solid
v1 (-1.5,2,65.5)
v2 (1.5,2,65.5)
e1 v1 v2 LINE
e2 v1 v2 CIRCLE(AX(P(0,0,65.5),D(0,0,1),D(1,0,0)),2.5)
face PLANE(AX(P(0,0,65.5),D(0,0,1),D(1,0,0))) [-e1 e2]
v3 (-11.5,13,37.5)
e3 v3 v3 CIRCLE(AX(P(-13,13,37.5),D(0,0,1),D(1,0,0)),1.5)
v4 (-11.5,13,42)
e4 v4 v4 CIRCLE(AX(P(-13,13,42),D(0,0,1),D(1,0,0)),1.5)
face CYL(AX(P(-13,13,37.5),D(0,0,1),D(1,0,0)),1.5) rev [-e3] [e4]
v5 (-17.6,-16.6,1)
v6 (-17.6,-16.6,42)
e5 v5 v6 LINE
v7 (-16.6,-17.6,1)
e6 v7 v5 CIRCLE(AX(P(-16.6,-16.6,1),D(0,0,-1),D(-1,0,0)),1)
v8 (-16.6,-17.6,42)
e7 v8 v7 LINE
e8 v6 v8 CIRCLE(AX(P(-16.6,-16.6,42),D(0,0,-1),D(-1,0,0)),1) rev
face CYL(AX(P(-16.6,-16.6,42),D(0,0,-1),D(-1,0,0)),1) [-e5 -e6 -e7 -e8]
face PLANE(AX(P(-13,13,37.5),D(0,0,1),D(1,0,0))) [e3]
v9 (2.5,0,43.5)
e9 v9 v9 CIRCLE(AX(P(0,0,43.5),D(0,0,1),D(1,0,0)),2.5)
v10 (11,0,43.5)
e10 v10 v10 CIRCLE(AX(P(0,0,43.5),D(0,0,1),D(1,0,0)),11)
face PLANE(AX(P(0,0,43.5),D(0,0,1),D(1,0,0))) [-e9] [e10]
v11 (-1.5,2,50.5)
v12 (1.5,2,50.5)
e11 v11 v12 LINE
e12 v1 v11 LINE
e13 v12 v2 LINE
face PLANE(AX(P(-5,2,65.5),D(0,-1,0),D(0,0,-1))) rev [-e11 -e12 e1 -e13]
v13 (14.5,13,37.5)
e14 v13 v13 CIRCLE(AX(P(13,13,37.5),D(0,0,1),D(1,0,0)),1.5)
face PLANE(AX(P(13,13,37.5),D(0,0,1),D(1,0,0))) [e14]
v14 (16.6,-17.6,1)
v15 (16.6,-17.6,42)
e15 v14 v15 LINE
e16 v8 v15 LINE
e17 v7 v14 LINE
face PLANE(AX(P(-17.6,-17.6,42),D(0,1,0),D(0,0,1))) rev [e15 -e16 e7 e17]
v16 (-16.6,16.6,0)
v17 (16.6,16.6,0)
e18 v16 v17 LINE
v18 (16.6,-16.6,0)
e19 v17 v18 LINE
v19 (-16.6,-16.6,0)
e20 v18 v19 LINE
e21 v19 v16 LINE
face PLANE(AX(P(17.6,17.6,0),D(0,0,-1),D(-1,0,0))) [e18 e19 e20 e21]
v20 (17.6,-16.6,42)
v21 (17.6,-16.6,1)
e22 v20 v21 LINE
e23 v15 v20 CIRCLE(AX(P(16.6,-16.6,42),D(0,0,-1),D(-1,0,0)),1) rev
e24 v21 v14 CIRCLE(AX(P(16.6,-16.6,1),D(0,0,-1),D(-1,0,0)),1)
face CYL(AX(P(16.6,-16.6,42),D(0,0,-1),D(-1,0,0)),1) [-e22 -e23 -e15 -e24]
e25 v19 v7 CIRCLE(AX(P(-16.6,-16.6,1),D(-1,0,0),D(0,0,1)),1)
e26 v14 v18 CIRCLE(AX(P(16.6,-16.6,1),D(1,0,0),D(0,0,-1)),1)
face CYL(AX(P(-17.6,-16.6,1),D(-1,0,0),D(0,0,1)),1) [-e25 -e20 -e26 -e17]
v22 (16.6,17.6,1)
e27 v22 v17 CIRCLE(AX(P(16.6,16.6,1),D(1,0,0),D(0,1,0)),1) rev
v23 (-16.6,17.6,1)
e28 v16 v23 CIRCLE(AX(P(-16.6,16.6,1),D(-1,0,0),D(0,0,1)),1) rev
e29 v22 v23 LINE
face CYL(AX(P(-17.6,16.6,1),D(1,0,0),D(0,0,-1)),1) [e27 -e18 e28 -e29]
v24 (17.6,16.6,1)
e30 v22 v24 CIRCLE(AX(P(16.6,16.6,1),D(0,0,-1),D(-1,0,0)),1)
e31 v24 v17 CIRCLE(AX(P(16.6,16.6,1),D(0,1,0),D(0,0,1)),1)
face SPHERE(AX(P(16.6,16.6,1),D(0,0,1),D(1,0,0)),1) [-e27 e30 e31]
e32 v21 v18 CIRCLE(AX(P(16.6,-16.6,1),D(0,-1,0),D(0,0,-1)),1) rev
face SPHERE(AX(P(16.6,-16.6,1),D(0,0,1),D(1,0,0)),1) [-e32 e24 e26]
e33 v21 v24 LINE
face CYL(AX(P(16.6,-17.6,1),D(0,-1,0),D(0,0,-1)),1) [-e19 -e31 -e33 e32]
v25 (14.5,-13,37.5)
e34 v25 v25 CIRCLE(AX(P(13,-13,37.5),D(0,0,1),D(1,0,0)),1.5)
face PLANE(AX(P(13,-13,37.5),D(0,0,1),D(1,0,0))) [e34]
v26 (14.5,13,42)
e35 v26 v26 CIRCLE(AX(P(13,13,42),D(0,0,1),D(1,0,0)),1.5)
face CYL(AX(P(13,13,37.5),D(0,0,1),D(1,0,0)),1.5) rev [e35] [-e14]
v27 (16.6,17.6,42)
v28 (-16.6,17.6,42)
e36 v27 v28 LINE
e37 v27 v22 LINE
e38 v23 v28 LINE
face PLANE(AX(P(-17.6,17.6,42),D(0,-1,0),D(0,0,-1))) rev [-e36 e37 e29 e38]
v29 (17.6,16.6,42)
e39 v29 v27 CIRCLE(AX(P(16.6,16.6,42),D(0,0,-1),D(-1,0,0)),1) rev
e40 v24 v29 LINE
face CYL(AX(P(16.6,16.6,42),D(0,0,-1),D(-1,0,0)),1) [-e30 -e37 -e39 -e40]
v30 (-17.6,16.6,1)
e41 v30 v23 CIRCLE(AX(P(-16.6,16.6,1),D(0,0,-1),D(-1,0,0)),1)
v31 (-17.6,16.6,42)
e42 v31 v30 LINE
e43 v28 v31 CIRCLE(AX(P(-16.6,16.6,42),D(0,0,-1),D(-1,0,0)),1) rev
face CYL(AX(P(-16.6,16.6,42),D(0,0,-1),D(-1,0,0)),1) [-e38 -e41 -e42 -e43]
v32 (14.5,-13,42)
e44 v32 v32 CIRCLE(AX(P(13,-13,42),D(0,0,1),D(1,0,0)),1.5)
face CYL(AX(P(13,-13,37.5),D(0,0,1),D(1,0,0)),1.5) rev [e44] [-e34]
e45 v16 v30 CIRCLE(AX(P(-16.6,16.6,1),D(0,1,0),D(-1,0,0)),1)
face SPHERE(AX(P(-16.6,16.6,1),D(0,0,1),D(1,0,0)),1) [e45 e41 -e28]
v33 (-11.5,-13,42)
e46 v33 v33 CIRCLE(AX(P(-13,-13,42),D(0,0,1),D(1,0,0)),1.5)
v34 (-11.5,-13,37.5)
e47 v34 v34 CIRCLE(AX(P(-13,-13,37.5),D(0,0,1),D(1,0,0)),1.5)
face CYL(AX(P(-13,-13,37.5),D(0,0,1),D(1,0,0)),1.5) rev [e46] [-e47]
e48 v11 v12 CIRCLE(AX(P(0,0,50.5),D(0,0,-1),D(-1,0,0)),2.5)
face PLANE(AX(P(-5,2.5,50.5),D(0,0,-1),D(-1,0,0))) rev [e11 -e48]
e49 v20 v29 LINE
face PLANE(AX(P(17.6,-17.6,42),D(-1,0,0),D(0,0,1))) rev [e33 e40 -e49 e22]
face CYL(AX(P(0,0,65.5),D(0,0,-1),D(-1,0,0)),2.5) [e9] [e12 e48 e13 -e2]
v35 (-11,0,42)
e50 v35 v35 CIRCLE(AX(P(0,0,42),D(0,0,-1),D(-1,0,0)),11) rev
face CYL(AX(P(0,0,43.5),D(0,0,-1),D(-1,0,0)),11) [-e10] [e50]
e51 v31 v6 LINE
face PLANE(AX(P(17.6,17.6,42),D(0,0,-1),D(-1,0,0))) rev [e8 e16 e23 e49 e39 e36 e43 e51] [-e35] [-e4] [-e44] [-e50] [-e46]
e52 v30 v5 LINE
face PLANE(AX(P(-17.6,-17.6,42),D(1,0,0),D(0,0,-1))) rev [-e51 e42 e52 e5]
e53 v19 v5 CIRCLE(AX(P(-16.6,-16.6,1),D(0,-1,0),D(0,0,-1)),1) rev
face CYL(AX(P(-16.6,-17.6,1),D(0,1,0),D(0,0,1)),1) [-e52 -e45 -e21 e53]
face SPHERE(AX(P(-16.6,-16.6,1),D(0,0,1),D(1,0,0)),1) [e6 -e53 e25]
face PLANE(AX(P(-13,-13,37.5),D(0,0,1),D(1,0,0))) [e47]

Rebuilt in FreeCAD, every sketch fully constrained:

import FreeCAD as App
import Part
import Sketcher
from FreeCAD import Vector
Q = App.Units.Quantity


def edges_at(feature, points):
    """Names of the edges that pass closest to the given points."""
    edges = feature.Shape.Edges
    near = lambda p: min(range(len(edges)), key=lambda i: edges[i].distToShape(Part.Vertex(*p))[0])
    return sorted({f"Edge{near(p) + 1}" for p in points})


def add_polygon(sketch, points):
    """Adds a closed chain of lines whose ends are joined by coincident constraints."""
    first, n = sketch.GeometryCount, len(points)
    for a, b in zip(points, points[1:] + points[:1]):
        sketch.addGeometry(Part.LineSegment(App.Vector(*a, 0), App.Vector(*b, 0)), False)
    for i in range(n):
        sketch.addConstraint(Sketcher.Constraint("Coincident", first + i, 2, first + (i + 1) % n, 1))

doc = App.newDocument("Part")
body = doc.addObject("PartDesign::Body", "Body")

sketch1 = body.newObject("Sketcher::SketchObject", "Sketch")
sketch1.AttachmentSupport = (doc.getObject("XY_Plane"), [""])
sketch1.MapMode = "FlatFace"
add_polygon(sketch1, [(-18, 18), (-18, -18), (18, -18), (18, 18)])
sketch1.addConstraint([
    Sketcher.Constraint("Vertical", 0),
    Sketcher.Constraint("Horizontal", 1),
    Sketcher.Constraint("Vertical", 2),
    Sketcher.Constraint("Horizontal", 3),
    Sketcher.Constraint("Symmetric", 0, 2, 2, 2, -1, 1),
    Sketcher.Constraint("Equal", 3, 0),
    Sketcher.Constraint("DistanceX", 1, 1, 1, 2, Q("35.2 mm")),
])
pad1 = body.newObject("PartDesign::Pad", "Pad")
pad1.Profile = sketch1
pad1.Length = 42

sketch2 = body.newObject("Sketcher::SketchObject", "Sketch001")
sketch2.AttachmentSupport = (doc.getObject("XY_Plane"), [""])
sketch2.MapMode = "FlatFace"
sketch2.AttachmentOffset = App.Placement(Vector(0, 0, 42), App.Rotation())
sketch2.addGeometry(Part.Circle(Vector(0, 0, 0), Vector(0, 0, 1), 11), False)
sketch2.addConstraint([
    Sketcher.Constraint("Coincident", 0, 3, -1, 1),
    Sketcher.Constraint("Diameter", 0, Q("22 mm")),
])
pad2 = body.newObject("PartDesign::Pad", "Pad001")
pad2.Profile = sketch2
pad2.Length = 1.5

sketch3 = body.newObject("Sketcher::SketchObject", "Sketch002")
sketch3.AttachmentSupport = (doc.getObject("XY_Plane"), [""])
sketch3.MapMode = "FlatFace"
sketch3.AttachmentOffset = App.Placement(Vector(0, 0, 43.5), App.Rotation())
sketch3.addGeometry(Part.Circle(Vector(0, 0, 0), Vector(0, 0, 1), 2.5), False)
sketch3.addConstraint([
    Sketcher.Constraint("Coincident", 0, 3, -1, 1),
    Sketcher.Constraint("Diameter", 0, Q("5 mm")),
])
pad3 = body.newObject("PartDesign::Pad", "Pad002")
pad3.Profile = sketch3
pad3.Length = 22

sketch4 = body.newObject("Sketcher::SketchObject", "Sketch003")
sketch4.AttachmentSupport = (doc.getObject("YZ_Plane"), [""])
sketch4.MapMode = "FlatFace"
add_polygon(sketch4, [(2.5, 65.5), (2, 65.5), (2, 50.5), (2.5, 50.5)])
sketch4.addConstraint([
    Sketcher.Constraint("Horizontal", 0),
    Sketcher.Constraint("Vertical", 1),
    Sketcher.Constraint("Horizontal", 2),
    Sketcher.Constraint("Vertical", 3),
    Sketcher.Constraint("DistanceY", 1, 2, 1, 1, Q("15 mm")),
    Sketcher.Constraint("DistanceX", 0, 2, 0, 1, Q("0.5 mm")),
    Sketcher.Constraint("DistanceX", -1, 1, 0, 2, Q("2 mm")),
    Sketcher.Constraint("DistanceY", -1, 1, 0, 2, Q("65.5 mm")),
])
pocket1 = body.newObject("PartDesign::Pocket", "Pocket")
pocket1.Profile = sketch4
pocket1.Length = 10
pocket1.Midplane = True

sketch5 = body.newObject("Sketcher::SketchObject", "Sketch004")
sketch5.AttachmentSupport = (doc.getObject("XY_Plane"), [""])
sketch5.MapMode = "FlatFace"
sketch5.AttachmentOffset = App.Placement(Vector(0, 0, 42), App.Rotation())
sketch5.addGeometry([
    Part.Circle(Vector(-13, 13, 0), Vector(0, 0, 1), 1.5),
    Part.Circle(Vector(13, 13, 0), Vector(0, 0, 1), 1.5),
    Part.Circle(Vector(13, -13, 0), Vector(0, 0, 1), 1.5),
    Part.Circle(Vector(-13, -13, 0), Vector(0, 0, 1), 1.5),
], False)
sketch5.addConstraint([
    Sketcher.Constraint("Equal", 0, 1),
    Sketcher.Constraint("Equal", 1, 2),
    Sketcher.Constraint("Equal", 2, 3),
    Sketcher.Constraint("Symmetric", 0, 3, 2, 3, -1, 1),
    Sketcher.Constraint("Symmetric", 1, 3, 3, 3, -1, 1),
    Sketcher.Constraint("Symmetric", 0, 3, 1, 3, -2),
    Sketcher.Constraint("Diameter", 0, Q("3 mm")),
    Sketcher.Constraint("DistanceX", 0, 3, -1, 1, Q("13 mm")),
    Sketcher.Constraint("DistanceY", -1, 1, 0, 3, Q("13 mm")),
])
pocket2 = body.newObject("PartDesign::Pocket", "Pocket001")
pocket2.Profile = sketch5
pocket2.Length = 4.5
doc.recompute()

fillet = body.newObject("PartDesign::Fillet", "Fillet")
fillet.Base = (pocket2, edges_at(pocket2, [
    (0, -17.6, 0),
    (-17.6, 0, 0),
    (0, 17.6, 0),
    (17.6, 0, 0),
    (17.6, -17.6, 21),
    (-17.6, -17.6, 21),
    (-17.6, 17.6, 21),
    (17.6, 17.6, 21),
]))
fillet.Radius = 1

doc.recompute()
